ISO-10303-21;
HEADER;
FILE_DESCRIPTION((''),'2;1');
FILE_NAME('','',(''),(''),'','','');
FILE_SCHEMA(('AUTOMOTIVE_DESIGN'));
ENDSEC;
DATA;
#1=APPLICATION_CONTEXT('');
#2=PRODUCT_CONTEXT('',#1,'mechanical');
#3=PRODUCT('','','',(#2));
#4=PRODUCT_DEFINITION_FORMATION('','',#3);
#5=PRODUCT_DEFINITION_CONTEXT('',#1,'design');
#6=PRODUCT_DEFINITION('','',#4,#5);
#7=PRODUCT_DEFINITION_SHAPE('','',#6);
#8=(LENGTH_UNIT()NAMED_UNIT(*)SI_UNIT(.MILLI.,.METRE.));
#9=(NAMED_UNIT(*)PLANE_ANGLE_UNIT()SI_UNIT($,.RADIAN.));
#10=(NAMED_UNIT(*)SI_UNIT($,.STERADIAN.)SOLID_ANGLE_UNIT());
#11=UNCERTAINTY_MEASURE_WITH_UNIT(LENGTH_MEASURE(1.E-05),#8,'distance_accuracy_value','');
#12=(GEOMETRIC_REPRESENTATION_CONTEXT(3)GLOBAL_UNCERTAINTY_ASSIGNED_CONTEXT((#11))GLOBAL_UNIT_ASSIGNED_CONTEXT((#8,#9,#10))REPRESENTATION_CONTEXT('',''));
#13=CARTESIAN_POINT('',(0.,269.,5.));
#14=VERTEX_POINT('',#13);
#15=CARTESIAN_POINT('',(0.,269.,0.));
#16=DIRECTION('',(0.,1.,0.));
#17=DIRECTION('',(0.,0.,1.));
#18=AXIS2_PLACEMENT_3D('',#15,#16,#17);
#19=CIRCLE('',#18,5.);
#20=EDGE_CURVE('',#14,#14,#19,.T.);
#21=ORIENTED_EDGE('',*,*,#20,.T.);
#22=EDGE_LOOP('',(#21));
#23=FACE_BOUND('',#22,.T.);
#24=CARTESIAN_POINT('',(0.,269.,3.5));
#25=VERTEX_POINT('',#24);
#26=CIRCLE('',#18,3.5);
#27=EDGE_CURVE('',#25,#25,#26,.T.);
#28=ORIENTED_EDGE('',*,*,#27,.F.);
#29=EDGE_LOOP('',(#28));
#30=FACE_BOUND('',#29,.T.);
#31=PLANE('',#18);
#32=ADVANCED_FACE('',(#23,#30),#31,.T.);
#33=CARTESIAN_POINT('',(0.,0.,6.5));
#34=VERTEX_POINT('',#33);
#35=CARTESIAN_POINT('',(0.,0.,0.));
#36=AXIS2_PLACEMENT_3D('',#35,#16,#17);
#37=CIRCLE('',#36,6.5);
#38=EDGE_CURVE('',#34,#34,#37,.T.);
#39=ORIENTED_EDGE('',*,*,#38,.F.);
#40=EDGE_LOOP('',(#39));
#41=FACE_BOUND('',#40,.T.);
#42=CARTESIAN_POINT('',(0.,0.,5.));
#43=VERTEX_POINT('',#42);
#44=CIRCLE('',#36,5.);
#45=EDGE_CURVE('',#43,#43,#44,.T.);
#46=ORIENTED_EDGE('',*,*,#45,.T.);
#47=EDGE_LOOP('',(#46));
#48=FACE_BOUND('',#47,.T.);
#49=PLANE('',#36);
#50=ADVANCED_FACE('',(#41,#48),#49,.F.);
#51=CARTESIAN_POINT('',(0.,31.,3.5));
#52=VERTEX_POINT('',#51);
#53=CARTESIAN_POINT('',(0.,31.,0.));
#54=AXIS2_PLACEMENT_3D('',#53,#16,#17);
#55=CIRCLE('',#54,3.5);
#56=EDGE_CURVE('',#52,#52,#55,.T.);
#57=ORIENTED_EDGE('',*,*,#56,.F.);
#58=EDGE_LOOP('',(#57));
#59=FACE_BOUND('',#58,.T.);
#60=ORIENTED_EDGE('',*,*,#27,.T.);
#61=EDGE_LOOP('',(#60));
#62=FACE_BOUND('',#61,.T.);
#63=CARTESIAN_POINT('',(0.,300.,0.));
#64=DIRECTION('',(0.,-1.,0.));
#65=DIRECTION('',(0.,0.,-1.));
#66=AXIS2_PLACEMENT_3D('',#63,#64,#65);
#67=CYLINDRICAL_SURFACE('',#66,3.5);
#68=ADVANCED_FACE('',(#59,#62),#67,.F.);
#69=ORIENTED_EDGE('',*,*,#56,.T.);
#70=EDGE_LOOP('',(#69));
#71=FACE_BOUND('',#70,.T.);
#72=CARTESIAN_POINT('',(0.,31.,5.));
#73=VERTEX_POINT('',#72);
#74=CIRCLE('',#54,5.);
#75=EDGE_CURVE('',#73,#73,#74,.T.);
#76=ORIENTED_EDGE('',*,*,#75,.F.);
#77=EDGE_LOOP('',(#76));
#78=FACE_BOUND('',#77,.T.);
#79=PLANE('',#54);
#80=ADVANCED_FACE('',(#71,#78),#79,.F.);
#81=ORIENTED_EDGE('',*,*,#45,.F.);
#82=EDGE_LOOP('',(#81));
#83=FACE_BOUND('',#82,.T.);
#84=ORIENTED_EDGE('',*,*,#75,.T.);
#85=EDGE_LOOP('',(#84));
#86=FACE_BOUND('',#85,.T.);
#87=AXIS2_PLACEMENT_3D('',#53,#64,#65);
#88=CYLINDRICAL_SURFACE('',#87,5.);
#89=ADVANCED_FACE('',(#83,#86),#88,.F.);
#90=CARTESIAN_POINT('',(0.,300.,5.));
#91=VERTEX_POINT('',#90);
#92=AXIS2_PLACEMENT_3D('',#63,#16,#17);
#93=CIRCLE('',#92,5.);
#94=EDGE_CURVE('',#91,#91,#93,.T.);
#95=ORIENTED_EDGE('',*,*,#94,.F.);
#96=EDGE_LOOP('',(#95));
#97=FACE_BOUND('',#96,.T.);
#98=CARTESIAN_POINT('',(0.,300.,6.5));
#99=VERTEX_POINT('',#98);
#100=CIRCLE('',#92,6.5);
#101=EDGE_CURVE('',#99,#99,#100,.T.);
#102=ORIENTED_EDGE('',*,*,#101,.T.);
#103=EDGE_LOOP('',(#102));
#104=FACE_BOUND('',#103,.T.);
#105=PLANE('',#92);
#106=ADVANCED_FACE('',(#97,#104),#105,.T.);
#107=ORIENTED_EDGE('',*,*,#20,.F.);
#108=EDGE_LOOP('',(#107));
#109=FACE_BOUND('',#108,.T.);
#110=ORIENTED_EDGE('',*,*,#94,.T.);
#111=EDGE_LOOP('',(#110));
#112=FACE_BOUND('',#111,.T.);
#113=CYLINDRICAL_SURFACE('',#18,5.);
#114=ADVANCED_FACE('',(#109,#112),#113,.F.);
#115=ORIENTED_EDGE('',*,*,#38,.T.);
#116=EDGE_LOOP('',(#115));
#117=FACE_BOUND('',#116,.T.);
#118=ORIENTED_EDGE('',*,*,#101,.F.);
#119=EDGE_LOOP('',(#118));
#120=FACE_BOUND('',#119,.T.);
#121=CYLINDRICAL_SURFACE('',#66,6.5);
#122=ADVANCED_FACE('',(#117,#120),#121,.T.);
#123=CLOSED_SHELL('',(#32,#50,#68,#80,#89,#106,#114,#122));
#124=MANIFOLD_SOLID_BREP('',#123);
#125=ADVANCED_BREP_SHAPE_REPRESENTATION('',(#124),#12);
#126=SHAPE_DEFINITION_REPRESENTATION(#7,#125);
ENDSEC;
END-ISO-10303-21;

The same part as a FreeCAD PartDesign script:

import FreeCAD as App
import Part
import Sketcher
Q = App.Units.Quantity

doc = App.newDocument("Part")
body = doc.addObject("PartDesign::Body", "Body")

sketch1 = doc.addObject("Sketcher::SketchObject", "Sketch")
body.addObject(sketch1)
sketch1.AttachmentSupport = (doc.XZ_Plane, [""])
sketch1.MapMode = "FlatFace"
sketch1.addGeometry(Part.Circle(App.Vector(0, 0, 0), App.Vector(0, 0, 1), 6.5), False)
sketch1.addGeometry(Part.Circle(App.Vector(0, 0, 0), App.Vector(0, 0, 1), 3.5), False)
sketch1.addConstraint(Sketcher.Constraint("Coincident", 0, 3, -1, 1))
sketch1.addConstraint(Sketcher.Constraint("Coincident", 1, 3, -1, 1))
sketch1.addConstraint(Sketcher.Constraint("Diameter", 0, Q("13 mm")))
sketch1.addConstraint(Sketcher.Constraint("Diameter", 1, Q("7 mm")))
pad1 = doc.addObject("PartDesign::Pad", "Pad")
body.addObject(pad1)
pad1.Profile = sketch1
pad1.Length = 300
pad1.Reversed = True

sketch2 = doc.addObject("Sketcher::SketchObject", "Sketch001")
body.addObject(sketch2)
sketch2.AttachmentSupport = (doc.XZ_Plane, [""])
sketch2.MapMode = "FlatFace"
sketch2.AttachmentOffset = App.Placement(App.Vector(0, 0, -300), App.Rotation())
sketch2.addGeometry(Part.Circle(App.Vector(0, 0, 0), App.Vector(0, 0, 1), 5), False)
sketch2.addConstraint(Sketcher.Constraint("Coincident", 0, 3, -1, 1))
sketch2.addConstraint(Sketcher.Constraint("Diameter", 0, Q("10 mm")))
pocket1 = doc.addObject("PartDesign::Pocket", "Pocket")
body.addObject(pocket1)
pocket1.Profile = sketch2
pocket1.Length = 31
pocket1.Reversed = True

sketch3 = doc.addObject("Sketcher::SketchObject", "Sketch002")
body.addObject(sketch3)
sketch3.AttachmentSupport = (doc.XZ_Plane, [""])
sketch3.MapMode = "FlatFace"
sketch3.AttachmentOffset = App.Placement(App.Vector(0, 0, -31), App.Rotation())
sketch3.addGeometry(Part.Circle(App.Vector(0, 0, 0), App.Vector(0, 0, 1), 5), False)
sketch3.addConstraint(Sketcher.Constraint("Coincident", 0, 3, -1, 1))
sketch3.addConstraint(Sketcher.Constraint("Diameter", 0, Q("10 mm")))
pocket2 = doc.addObject("PartDesign::Pocket", "Pocket001")
body.addObject(pocket2)
pocket2.Profile = sketch3
pocket2.Length = 31
pocket2.Reversed = True

doc.recompute()
